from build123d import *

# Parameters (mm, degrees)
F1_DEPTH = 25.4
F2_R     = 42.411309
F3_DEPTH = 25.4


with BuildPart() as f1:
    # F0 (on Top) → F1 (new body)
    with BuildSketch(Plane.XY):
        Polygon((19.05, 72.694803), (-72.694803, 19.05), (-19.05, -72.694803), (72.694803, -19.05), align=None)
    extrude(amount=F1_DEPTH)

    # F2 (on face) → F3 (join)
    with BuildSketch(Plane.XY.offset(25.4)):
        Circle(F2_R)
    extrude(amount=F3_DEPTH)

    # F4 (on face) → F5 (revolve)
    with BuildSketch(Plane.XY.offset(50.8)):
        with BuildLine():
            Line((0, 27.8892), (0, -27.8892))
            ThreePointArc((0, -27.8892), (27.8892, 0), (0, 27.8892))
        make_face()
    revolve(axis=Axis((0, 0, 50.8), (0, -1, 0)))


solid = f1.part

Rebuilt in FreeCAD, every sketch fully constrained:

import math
import FreeCAD as App
import Part
import Sketcher

V = App.Vector
Q = App.Units.Quantity

doc = App.newDocument("Part")
body = doc.addObject("PartDesign::Body", "Body")

sketch1 = body.newObject("Sketcher::SketchObject", "Sketch")
sketch1.AttachmentSupport = (doc.getObject("XY_Plane"), [""])
sketch1.MapMode = "FlatFace"
sketch1.addGeometry([
    Part.LineSegment(V(19.05, 72.694803, 0), V(-72.694803, 19.05, 0)),
    Part.LineSegment(V(-72.694803, 19.05, 0), V(-19.05, -72.694803, 0)),
    Part.LineSegment(V(-19.05, -72.694803, 0), V(72.694803, -19.05, 0)),
    Part.LineSegment(V(72.694803, -19.05, 0), V(19.05, 72.694803, 0)),
], False)
sketch1.addConstraint([
    Sketcher.Constraint("Coincident", 0, 2, 1, 1),
    Sketcher.Constraint("Coincident", 1, 2, 2, 1),
    Sketcher.Constraint("Coincident", 2, 2, 3, 1),
    Sketcher.Constraint("Coincident", 3, 2, 0, 1),
    Sketcher.Constraint("Symmetric", 0, 2, 2, 2, -1, 1),
    Sketcher.Constraint("Symmetric", 1, 2, 3, 2, -1, 1),
    Sketcher.Constraint("Perpendicular", 0, 1),
    Sketcher.Constraint("Equal", 0, 1),
    Sketcher.Constraint("DistanceY", 2, 2, 0, 2, Q("1.5 in")),
    Sketcher.Constraint("DistanceX", 0, 2, -1, 1, Q("2.8620001 in")),
])
pad1 = body.newObject("PartDesign::Pad", "Pad")
pad1.Profile = sketch1
pad1.Length = Q("1 in")

sketch2 = body.newObject("Sketcher::SketchObject", "Sketch001")
sketch2.AttachmentSupport = (doc.getObject("XY_Plane"), [""])
sketch2.MapMode = "FlatFace"
sketch2.AttachmentOffset = App.Placement(V(0, 0, 1 * 25.4), App.Rotation())
sketch2.addGeometry(Part.Circle(V(0, 0, 0), V(0, 0, 1), 42.411309), False)
sketch2.addConstraint([
    Sketcher.Constraint("Coincident", 0, 3, -1, 1),
    Sketcher.Constraint("Diameter", 0, 84.822618),
])
pad2 = body.newObject("PartDesign::Pad", "Pad001")
pad2.Profile = sketch2
pad2.Length = Q("1 in")

sketch3 = body.newObject("Sketcher::SketchObject", "Sketch002")
sketch3.AttachmentSupport = (doc.getObject("XY_Plane"), [""])
sketch3.MapMode = "FlatFace"
sketch3.AttachmentOffset = App.Placement(V(0, 0, 2 * 25.4), App.Rotation())
sketch3.addGeometry([
    Part.LineSegment(V(0, 27.8892, 0), V(0, -27.8892, 0)),
    Part.ArcOfCircle(Part.Circle(V(0, 0, 0), V(0, 0, 1), 27.8892), math.radians(-90), math.radians(90)),
], False)
sketch3.addConstraint([
    Sketcher.Constraint("Coincident", 0, 1, 1, 2),
    Sketcher.Constraint("Coincident", 1, 1, 0, 2),
    Sketcher.Constraint("Vertical", 0),
    Sketcher.Constraint("Coincident", 1, 3, -1, 1),
    Sketcher.Constraint("PointOnObject", 0, 1, -2),
    Sketcher.Constraint("Radius", 1, Q("1.098 in")),
])
revolution = body.newObject("PartDesign::Revolution", "Revolution")
revolution.Profile = sketch3
revolution.ReferenceAxis = (sketch3, ["V_Axis"])
revolution.Angle = 360

doc.recompute()
